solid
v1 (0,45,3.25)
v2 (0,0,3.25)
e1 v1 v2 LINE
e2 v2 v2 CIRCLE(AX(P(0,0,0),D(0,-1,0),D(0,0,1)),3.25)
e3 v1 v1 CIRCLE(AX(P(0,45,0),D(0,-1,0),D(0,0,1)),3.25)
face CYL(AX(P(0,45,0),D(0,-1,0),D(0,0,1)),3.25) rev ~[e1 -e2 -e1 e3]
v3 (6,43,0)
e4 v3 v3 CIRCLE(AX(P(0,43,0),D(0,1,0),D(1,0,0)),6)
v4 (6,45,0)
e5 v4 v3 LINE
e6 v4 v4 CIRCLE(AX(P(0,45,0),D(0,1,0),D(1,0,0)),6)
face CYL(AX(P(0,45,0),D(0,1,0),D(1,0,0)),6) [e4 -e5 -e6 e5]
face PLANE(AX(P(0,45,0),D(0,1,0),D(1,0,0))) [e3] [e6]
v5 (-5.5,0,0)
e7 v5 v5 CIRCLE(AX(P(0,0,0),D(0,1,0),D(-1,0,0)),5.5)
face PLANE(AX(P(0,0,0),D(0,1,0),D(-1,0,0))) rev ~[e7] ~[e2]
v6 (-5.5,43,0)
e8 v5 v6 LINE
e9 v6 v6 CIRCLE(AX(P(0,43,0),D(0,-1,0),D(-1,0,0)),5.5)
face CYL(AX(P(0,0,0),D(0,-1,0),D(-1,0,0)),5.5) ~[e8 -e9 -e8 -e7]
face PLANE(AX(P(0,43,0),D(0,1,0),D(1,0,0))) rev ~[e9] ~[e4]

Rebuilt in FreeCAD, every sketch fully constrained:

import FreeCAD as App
import Part
import Sketcher
Q = App.Units.Quantity

doc = App.newDocument("Part")
body = doc.addObject("PartDesign::Body", "Body")

# Sketch on XZ plane
sketch1 = body.newObject("Sketcher::SketchObject", "Sketch")
sketch1.AttachmentSupport = (doc.getObject("XZ_Plane"), [""])
sketch1.MapMode = "FlatFace"
sketch1.addGeometry(Part.Circle(App.Vector(0, 0, 0), App.Vector(0, 0, 1), 6), False)
sketch1.addConstraint([
    Sketcher.Constraint("Coincident", 0, 3, -1, 1),
    Sketcher.Constraint("Diameter", 0, Q("11 mm")),
])
pad1 = body.newObject("PartDesign::Pad", "Pad")
pad1.Profile = sketch1
pad1.Length = 45
pad1.Reversed = True

# Sketch on XZ plane
sketch2 = body.newObject("Sketcher::SketchObject", "Sketch001")
sketch2.AttachmentSupport = (doc.getObject("XZ_Plane"), [""])
sketch2.MapMode = "FlatFace"
sketch2.AttachmentOffset = App.Placement(App.Vector(0, 0, -45), App.Rotation())
sketch2.addGeometry(Part.Circle(App.Vector(0, 0, 0), App.Vector(0, 0, 1), 6), False)
sketch2.addConstraint([
    Sketcher.Constraint("Coincident", 0, 3, -1, 1),
    Sketcher.Constraint("Diameter", 0, Q("12 mm")),
])
pad2 = body.newObject("PartDesign::Pad", "Pad001")
pad2.Profile = sketch2
pad2.Length = 2

# Sketch on XZ plane
sketch3 = body.newObject("Sketcher::SketchObject", "Sketch002")
sketch3.AttachmentSupport = (doc.getObject("XZ_Plane"), [""])
sketch3.MapMode = "FlatFace"
sketch3.AttachmentOffset = App.Placement(App.Vector(0, 0, -45), App.Rotation())
sketch3.addGeometry(Part.Circle(App.Vector(0, 0, 0), App.Vector(0, 0, 1), 3.2), False)
sketch3.addConstraint([
    Sketcher.Constraint("Coincident", 0, 3, -1, 1),
    Sketcher.Constraint("Diameter", 0, Q("6.5 mm")),
])
doc.recompute()
hole = body.newObject("PartDesign::Hole", "Hole")
hole.Profile = sketch3
hole.ThreadType = "None"
hole.Diameter = 6.5
hole.DepthType = "ThroughAll"
hole.Reversed = True

doc.recompute()
